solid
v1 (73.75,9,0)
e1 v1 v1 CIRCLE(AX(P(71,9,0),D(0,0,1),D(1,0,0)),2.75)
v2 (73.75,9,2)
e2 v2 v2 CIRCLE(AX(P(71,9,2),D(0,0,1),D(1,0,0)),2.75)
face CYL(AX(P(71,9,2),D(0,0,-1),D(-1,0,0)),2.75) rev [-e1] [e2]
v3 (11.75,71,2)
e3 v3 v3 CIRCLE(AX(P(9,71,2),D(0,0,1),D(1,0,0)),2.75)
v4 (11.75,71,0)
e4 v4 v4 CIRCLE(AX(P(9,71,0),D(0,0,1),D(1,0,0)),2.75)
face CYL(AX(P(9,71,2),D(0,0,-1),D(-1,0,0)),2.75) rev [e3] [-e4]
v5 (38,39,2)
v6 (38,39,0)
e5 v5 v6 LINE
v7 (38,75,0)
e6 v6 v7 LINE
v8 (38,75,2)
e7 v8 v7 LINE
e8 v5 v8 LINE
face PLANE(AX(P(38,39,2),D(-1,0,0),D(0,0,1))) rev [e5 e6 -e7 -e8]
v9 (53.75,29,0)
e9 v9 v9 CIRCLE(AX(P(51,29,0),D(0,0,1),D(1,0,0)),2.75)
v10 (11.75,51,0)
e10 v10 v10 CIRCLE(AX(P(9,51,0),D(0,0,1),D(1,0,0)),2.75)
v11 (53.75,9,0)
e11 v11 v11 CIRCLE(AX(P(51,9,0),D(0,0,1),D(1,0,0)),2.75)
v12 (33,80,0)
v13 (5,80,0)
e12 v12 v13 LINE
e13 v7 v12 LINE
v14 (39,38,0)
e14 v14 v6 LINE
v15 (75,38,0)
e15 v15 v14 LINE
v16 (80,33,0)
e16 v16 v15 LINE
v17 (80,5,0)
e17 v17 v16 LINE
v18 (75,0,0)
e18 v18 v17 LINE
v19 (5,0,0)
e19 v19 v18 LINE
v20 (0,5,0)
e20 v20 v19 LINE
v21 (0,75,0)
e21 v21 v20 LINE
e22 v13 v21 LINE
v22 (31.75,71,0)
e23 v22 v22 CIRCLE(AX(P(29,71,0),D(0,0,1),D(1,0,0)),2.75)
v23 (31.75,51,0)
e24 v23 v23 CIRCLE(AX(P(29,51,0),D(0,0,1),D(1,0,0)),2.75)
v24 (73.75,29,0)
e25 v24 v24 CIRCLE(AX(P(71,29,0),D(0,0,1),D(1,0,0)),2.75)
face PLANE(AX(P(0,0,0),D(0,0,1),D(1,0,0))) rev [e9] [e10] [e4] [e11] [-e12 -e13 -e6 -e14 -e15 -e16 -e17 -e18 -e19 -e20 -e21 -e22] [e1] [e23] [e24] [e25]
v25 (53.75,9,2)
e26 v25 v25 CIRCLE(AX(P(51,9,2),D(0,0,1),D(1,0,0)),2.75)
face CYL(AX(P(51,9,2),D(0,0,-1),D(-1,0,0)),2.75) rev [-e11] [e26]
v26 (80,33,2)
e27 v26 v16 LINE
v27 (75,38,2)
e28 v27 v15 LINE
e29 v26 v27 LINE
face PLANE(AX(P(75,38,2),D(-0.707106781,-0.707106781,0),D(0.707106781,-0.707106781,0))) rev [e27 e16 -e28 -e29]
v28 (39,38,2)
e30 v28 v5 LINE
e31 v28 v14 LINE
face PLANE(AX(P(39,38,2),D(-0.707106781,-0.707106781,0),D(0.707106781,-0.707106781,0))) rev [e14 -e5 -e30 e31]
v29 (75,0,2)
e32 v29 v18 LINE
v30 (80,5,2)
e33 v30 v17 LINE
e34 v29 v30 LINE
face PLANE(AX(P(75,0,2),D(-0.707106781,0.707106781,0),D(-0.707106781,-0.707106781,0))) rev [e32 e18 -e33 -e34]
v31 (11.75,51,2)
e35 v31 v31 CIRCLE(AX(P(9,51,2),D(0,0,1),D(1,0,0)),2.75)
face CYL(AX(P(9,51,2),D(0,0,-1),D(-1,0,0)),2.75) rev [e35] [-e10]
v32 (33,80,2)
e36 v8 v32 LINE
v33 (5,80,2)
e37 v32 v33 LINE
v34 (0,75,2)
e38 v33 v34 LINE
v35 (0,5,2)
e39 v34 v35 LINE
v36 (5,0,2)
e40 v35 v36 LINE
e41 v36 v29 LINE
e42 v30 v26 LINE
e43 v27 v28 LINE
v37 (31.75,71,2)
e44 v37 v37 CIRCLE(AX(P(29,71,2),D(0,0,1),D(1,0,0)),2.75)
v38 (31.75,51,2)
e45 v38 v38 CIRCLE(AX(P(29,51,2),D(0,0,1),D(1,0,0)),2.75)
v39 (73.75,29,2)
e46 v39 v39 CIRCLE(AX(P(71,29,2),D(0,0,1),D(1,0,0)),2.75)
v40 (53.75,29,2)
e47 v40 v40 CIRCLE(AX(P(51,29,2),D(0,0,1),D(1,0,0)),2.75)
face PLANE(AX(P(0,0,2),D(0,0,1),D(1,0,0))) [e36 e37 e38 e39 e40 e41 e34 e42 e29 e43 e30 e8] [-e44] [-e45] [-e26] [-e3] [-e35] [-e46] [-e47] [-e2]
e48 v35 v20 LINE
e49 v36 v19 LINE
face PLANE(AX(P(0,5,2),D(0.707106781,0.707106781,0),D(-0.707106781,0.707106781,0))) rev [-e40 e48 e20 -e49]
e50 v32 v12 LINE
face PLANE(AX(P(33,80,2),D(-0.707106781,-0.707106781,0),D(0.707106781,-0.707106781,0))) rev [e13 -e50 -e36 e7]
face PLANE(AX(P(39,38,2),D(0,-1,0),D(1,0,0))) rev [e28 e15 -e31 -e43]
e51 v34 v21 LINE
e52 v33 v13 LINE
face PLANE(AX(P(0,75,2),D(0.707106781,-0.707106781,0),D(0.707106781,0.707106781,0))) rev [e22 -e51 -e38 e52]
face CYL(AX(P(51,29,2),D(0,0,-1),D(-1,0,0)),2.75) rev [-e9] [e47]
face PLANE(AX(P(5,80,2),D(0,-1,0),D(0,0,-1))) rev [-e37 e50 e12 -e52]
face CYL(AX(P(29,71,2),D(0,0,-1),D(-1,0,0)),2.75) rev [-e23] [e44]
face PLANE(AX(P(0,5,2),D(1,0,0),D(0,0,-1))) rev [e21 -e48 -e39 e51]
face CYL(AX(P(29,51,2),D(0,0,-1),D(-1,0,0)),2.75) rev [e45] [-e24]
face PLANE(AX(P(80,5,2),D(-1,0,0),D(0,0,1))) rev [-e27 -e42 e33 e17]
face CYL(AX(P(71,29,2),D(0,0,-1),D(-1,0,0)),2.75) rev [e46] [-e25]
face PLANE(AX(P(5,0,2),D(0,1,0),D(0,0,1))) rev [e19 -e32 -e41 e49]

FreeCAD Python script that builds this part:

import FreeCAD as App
import Part
import Sketcher

V = App.Vector
Q = App.Units.Quantity


def add_polygon(sketch, points):
    """Adds a closed chain of lines whose ends are joined by coincident constraints."""
    first, n = sketch.GeometryCount, len(points)
    for a, b in zip(points, points[1:] + points[:1]):
        sketch.addGeometry(Part.LineSegment(App.Vector(*a, 0), App.Vector(*b, 0)), False)
    for i in range(n):
        sketch.addConstraint(Sketcher.Constraint("Coincident", first + i, 2, first + (i + 1) % n, 1))

doc = App.newDocument("Part")
body = doc.addObject("PartDesign::Body", "Body")

# Sketch on XY plane
sketch1 = doc.addObject("Sketcher::SketchObject", "Sketch")
body.addObject(sketch1)
sketch1.AttachmentSupport = (doc.XY_Plane, [""])
sketch1.MapMode = "FlatFace"
add_polygon(sketch1, [(5, 0), (75, 0), (80, 5), (80, 33), (75, 38), (39, 38), (38, 39), (38, 75), (33, 80), (5, 80), (0, 75), (0, 5)])  # lines 0-11
sketch1.addGeometry(Part.Circle(V(51, 9, 0), V(0, 0, 1), 2.8), False)  # 12
sketch1.addGeometry(Part.Circle(V(71, 9, 0), V(0, 0, 1), 2.8), False)  # 13
sketch1.addGeometry(Part.Circle(V(51, 29, 0), V(0, 0, 1), 2.8), False)  # 14
sketch1.addGeometry(Part.Circle(V(71, 29, 0), V(0, 0, 1), 2.8), False)  # 15
sketch1.addGeometry(Part.Circle(V(9, 51, 0), V(0, 0, 1), 2.8), False)  # 16
sketch1.addGeometry(Part.Circle(V(29, 51, 0), V(0, 0, 1), 2.8), False)  # 17
sketch1.addGeometry(Part.Circle(V(9, 71, 0), V(0, 0, 1), 2.8), False)  # 18
sketch1.addGeometry(Part.Circle(V(29, 71, 0), V(0, 0, 1), 2.8), False)  # 19
sketch1.addConstraint([
    Sketcher.Constraint("Horizontal", 0),
    Sketcher.Constraint("Vertical", 2),
    Sketcher.Constraint("Horizontal", 4),
    Sketcher.Constraint("Vertical", 6),
    Sketcher.Constraint("Horizontal", 8),
    Sketcher.Constraint("Vertical", 10),
    Sketcher.Constraint("Equal", 12, 13),
    Sketcher.Constraint("Equal", 13, 14),
    Sketcher.Constraint("Equal", 14, 15),
    Sketcher.Constraint("Equal", 15, 16),
    Sketcher.Constraint("Equal", 16, 17),
    Sketcher.Constraint("Equal", 17, 18),
    Sketcher.Constraint("Equal", 18, 19),
    Sketcher.Constraint("PointOnObject", 0, 2, -1),
    Sketcher.Constraint("PointOnObject", 9, 2, -2),
    Sketcher.Constraint("Perpendicular", 1, 3),
    Sketcher.Constraint("Parallel", 3, 5),
    Sketcher.Constraint("Parallel", 5, 7),
    Sketcher.Constraint("Perpendicular", 7, 9),
    Sketcher.Constraint("Perpendicular", 9, 11),
    Sketcher.Constraint("Horizontal", 12, 3, 13, 3),
    Sketcher.Constraint("Horizontal", 14, 3, 15, 3),
    Sketcher.Constraint("Horizontal", 16, 3, 17, 3),
    Sketcher.Constraint("Horizontal", 18, 3, 19, 3),
    Sketcher.Constraint("Horizontal", 6, 2, 9, 2),
    Sketcher.Constraint("Horizontal", 1, 2, 10, 2),
    Sketcher.Constraint("Vertical", 12, 3, 14, 3),
    Sketcher.Constraint("Vertical", 13, 3, 15, 3),
    Sketcher.Constraint("Vertical", 16, 3, 18, 3),
    Sketcher.Constraint("Vertical", 17, 3, 19, 3),
    Sketcher.Constraint("Vertical", 0, 2, 3, 2),
    Sketcher.Constraint("Vertical", 8, 2, 11, 2),
    Sketcher.Constraint("Equal", 8, 2),
    Sketcher.Constraint("Equal", 4, 6),
    Sketcher.Constraint("Equal", 0, 10),
    Sketcher.Constraint("Diameter", 12, Q("5.5 mm")),
    Sketcher.Constraint("DistanceX", 0, 1, 0, 2, Q("70 mm")),
    Sketcher.Constraint("DistanceX", 4, 2, 4, 1, Q("36 mm")),
    Sketcher.Constraint("DistanceX", 8, 2, 8, 1, Q("28 mm")),
    Sketcher.Constraint("DistanceX", -1, 1, 12, 3, Q("51 mm")),
    Sketcher.Constraint("DistanceY", -1, 1, 12, 3, Q("9 mm")),
    Sketcher.Constraint("DistanceX", -1, 1, 13, 3, Q("71 mm")),
    Sketcher.Constraint("DistanceY", -1, 1, 14, 3, Q("29 mm")),
    Sketcher.Constraint("DistanceX", -1, 1, 16, 3, Q("9 mm")),
    Sketcher.Constraint("DistanceY", -1, 1, 16, 3, Q("51 mm")),
    Sketcher.Constraint("DistanceX", -1, 1, 17, 3, Q("29 mm")),
    Sketcher.Constraint("DistanceY", -1, 1, 18, 3, Q("71 mm")),
    Sketcher.Constraint("DistanceX", -1, 1, 0, 2, Q("75 mm")),
])
pad1 = doc.addObject("PartDesign::Pad", "Pad")
body.addObject(pad1)
pad1.Profile = sketch1
pad1.Length = 2

doc.recompute()
